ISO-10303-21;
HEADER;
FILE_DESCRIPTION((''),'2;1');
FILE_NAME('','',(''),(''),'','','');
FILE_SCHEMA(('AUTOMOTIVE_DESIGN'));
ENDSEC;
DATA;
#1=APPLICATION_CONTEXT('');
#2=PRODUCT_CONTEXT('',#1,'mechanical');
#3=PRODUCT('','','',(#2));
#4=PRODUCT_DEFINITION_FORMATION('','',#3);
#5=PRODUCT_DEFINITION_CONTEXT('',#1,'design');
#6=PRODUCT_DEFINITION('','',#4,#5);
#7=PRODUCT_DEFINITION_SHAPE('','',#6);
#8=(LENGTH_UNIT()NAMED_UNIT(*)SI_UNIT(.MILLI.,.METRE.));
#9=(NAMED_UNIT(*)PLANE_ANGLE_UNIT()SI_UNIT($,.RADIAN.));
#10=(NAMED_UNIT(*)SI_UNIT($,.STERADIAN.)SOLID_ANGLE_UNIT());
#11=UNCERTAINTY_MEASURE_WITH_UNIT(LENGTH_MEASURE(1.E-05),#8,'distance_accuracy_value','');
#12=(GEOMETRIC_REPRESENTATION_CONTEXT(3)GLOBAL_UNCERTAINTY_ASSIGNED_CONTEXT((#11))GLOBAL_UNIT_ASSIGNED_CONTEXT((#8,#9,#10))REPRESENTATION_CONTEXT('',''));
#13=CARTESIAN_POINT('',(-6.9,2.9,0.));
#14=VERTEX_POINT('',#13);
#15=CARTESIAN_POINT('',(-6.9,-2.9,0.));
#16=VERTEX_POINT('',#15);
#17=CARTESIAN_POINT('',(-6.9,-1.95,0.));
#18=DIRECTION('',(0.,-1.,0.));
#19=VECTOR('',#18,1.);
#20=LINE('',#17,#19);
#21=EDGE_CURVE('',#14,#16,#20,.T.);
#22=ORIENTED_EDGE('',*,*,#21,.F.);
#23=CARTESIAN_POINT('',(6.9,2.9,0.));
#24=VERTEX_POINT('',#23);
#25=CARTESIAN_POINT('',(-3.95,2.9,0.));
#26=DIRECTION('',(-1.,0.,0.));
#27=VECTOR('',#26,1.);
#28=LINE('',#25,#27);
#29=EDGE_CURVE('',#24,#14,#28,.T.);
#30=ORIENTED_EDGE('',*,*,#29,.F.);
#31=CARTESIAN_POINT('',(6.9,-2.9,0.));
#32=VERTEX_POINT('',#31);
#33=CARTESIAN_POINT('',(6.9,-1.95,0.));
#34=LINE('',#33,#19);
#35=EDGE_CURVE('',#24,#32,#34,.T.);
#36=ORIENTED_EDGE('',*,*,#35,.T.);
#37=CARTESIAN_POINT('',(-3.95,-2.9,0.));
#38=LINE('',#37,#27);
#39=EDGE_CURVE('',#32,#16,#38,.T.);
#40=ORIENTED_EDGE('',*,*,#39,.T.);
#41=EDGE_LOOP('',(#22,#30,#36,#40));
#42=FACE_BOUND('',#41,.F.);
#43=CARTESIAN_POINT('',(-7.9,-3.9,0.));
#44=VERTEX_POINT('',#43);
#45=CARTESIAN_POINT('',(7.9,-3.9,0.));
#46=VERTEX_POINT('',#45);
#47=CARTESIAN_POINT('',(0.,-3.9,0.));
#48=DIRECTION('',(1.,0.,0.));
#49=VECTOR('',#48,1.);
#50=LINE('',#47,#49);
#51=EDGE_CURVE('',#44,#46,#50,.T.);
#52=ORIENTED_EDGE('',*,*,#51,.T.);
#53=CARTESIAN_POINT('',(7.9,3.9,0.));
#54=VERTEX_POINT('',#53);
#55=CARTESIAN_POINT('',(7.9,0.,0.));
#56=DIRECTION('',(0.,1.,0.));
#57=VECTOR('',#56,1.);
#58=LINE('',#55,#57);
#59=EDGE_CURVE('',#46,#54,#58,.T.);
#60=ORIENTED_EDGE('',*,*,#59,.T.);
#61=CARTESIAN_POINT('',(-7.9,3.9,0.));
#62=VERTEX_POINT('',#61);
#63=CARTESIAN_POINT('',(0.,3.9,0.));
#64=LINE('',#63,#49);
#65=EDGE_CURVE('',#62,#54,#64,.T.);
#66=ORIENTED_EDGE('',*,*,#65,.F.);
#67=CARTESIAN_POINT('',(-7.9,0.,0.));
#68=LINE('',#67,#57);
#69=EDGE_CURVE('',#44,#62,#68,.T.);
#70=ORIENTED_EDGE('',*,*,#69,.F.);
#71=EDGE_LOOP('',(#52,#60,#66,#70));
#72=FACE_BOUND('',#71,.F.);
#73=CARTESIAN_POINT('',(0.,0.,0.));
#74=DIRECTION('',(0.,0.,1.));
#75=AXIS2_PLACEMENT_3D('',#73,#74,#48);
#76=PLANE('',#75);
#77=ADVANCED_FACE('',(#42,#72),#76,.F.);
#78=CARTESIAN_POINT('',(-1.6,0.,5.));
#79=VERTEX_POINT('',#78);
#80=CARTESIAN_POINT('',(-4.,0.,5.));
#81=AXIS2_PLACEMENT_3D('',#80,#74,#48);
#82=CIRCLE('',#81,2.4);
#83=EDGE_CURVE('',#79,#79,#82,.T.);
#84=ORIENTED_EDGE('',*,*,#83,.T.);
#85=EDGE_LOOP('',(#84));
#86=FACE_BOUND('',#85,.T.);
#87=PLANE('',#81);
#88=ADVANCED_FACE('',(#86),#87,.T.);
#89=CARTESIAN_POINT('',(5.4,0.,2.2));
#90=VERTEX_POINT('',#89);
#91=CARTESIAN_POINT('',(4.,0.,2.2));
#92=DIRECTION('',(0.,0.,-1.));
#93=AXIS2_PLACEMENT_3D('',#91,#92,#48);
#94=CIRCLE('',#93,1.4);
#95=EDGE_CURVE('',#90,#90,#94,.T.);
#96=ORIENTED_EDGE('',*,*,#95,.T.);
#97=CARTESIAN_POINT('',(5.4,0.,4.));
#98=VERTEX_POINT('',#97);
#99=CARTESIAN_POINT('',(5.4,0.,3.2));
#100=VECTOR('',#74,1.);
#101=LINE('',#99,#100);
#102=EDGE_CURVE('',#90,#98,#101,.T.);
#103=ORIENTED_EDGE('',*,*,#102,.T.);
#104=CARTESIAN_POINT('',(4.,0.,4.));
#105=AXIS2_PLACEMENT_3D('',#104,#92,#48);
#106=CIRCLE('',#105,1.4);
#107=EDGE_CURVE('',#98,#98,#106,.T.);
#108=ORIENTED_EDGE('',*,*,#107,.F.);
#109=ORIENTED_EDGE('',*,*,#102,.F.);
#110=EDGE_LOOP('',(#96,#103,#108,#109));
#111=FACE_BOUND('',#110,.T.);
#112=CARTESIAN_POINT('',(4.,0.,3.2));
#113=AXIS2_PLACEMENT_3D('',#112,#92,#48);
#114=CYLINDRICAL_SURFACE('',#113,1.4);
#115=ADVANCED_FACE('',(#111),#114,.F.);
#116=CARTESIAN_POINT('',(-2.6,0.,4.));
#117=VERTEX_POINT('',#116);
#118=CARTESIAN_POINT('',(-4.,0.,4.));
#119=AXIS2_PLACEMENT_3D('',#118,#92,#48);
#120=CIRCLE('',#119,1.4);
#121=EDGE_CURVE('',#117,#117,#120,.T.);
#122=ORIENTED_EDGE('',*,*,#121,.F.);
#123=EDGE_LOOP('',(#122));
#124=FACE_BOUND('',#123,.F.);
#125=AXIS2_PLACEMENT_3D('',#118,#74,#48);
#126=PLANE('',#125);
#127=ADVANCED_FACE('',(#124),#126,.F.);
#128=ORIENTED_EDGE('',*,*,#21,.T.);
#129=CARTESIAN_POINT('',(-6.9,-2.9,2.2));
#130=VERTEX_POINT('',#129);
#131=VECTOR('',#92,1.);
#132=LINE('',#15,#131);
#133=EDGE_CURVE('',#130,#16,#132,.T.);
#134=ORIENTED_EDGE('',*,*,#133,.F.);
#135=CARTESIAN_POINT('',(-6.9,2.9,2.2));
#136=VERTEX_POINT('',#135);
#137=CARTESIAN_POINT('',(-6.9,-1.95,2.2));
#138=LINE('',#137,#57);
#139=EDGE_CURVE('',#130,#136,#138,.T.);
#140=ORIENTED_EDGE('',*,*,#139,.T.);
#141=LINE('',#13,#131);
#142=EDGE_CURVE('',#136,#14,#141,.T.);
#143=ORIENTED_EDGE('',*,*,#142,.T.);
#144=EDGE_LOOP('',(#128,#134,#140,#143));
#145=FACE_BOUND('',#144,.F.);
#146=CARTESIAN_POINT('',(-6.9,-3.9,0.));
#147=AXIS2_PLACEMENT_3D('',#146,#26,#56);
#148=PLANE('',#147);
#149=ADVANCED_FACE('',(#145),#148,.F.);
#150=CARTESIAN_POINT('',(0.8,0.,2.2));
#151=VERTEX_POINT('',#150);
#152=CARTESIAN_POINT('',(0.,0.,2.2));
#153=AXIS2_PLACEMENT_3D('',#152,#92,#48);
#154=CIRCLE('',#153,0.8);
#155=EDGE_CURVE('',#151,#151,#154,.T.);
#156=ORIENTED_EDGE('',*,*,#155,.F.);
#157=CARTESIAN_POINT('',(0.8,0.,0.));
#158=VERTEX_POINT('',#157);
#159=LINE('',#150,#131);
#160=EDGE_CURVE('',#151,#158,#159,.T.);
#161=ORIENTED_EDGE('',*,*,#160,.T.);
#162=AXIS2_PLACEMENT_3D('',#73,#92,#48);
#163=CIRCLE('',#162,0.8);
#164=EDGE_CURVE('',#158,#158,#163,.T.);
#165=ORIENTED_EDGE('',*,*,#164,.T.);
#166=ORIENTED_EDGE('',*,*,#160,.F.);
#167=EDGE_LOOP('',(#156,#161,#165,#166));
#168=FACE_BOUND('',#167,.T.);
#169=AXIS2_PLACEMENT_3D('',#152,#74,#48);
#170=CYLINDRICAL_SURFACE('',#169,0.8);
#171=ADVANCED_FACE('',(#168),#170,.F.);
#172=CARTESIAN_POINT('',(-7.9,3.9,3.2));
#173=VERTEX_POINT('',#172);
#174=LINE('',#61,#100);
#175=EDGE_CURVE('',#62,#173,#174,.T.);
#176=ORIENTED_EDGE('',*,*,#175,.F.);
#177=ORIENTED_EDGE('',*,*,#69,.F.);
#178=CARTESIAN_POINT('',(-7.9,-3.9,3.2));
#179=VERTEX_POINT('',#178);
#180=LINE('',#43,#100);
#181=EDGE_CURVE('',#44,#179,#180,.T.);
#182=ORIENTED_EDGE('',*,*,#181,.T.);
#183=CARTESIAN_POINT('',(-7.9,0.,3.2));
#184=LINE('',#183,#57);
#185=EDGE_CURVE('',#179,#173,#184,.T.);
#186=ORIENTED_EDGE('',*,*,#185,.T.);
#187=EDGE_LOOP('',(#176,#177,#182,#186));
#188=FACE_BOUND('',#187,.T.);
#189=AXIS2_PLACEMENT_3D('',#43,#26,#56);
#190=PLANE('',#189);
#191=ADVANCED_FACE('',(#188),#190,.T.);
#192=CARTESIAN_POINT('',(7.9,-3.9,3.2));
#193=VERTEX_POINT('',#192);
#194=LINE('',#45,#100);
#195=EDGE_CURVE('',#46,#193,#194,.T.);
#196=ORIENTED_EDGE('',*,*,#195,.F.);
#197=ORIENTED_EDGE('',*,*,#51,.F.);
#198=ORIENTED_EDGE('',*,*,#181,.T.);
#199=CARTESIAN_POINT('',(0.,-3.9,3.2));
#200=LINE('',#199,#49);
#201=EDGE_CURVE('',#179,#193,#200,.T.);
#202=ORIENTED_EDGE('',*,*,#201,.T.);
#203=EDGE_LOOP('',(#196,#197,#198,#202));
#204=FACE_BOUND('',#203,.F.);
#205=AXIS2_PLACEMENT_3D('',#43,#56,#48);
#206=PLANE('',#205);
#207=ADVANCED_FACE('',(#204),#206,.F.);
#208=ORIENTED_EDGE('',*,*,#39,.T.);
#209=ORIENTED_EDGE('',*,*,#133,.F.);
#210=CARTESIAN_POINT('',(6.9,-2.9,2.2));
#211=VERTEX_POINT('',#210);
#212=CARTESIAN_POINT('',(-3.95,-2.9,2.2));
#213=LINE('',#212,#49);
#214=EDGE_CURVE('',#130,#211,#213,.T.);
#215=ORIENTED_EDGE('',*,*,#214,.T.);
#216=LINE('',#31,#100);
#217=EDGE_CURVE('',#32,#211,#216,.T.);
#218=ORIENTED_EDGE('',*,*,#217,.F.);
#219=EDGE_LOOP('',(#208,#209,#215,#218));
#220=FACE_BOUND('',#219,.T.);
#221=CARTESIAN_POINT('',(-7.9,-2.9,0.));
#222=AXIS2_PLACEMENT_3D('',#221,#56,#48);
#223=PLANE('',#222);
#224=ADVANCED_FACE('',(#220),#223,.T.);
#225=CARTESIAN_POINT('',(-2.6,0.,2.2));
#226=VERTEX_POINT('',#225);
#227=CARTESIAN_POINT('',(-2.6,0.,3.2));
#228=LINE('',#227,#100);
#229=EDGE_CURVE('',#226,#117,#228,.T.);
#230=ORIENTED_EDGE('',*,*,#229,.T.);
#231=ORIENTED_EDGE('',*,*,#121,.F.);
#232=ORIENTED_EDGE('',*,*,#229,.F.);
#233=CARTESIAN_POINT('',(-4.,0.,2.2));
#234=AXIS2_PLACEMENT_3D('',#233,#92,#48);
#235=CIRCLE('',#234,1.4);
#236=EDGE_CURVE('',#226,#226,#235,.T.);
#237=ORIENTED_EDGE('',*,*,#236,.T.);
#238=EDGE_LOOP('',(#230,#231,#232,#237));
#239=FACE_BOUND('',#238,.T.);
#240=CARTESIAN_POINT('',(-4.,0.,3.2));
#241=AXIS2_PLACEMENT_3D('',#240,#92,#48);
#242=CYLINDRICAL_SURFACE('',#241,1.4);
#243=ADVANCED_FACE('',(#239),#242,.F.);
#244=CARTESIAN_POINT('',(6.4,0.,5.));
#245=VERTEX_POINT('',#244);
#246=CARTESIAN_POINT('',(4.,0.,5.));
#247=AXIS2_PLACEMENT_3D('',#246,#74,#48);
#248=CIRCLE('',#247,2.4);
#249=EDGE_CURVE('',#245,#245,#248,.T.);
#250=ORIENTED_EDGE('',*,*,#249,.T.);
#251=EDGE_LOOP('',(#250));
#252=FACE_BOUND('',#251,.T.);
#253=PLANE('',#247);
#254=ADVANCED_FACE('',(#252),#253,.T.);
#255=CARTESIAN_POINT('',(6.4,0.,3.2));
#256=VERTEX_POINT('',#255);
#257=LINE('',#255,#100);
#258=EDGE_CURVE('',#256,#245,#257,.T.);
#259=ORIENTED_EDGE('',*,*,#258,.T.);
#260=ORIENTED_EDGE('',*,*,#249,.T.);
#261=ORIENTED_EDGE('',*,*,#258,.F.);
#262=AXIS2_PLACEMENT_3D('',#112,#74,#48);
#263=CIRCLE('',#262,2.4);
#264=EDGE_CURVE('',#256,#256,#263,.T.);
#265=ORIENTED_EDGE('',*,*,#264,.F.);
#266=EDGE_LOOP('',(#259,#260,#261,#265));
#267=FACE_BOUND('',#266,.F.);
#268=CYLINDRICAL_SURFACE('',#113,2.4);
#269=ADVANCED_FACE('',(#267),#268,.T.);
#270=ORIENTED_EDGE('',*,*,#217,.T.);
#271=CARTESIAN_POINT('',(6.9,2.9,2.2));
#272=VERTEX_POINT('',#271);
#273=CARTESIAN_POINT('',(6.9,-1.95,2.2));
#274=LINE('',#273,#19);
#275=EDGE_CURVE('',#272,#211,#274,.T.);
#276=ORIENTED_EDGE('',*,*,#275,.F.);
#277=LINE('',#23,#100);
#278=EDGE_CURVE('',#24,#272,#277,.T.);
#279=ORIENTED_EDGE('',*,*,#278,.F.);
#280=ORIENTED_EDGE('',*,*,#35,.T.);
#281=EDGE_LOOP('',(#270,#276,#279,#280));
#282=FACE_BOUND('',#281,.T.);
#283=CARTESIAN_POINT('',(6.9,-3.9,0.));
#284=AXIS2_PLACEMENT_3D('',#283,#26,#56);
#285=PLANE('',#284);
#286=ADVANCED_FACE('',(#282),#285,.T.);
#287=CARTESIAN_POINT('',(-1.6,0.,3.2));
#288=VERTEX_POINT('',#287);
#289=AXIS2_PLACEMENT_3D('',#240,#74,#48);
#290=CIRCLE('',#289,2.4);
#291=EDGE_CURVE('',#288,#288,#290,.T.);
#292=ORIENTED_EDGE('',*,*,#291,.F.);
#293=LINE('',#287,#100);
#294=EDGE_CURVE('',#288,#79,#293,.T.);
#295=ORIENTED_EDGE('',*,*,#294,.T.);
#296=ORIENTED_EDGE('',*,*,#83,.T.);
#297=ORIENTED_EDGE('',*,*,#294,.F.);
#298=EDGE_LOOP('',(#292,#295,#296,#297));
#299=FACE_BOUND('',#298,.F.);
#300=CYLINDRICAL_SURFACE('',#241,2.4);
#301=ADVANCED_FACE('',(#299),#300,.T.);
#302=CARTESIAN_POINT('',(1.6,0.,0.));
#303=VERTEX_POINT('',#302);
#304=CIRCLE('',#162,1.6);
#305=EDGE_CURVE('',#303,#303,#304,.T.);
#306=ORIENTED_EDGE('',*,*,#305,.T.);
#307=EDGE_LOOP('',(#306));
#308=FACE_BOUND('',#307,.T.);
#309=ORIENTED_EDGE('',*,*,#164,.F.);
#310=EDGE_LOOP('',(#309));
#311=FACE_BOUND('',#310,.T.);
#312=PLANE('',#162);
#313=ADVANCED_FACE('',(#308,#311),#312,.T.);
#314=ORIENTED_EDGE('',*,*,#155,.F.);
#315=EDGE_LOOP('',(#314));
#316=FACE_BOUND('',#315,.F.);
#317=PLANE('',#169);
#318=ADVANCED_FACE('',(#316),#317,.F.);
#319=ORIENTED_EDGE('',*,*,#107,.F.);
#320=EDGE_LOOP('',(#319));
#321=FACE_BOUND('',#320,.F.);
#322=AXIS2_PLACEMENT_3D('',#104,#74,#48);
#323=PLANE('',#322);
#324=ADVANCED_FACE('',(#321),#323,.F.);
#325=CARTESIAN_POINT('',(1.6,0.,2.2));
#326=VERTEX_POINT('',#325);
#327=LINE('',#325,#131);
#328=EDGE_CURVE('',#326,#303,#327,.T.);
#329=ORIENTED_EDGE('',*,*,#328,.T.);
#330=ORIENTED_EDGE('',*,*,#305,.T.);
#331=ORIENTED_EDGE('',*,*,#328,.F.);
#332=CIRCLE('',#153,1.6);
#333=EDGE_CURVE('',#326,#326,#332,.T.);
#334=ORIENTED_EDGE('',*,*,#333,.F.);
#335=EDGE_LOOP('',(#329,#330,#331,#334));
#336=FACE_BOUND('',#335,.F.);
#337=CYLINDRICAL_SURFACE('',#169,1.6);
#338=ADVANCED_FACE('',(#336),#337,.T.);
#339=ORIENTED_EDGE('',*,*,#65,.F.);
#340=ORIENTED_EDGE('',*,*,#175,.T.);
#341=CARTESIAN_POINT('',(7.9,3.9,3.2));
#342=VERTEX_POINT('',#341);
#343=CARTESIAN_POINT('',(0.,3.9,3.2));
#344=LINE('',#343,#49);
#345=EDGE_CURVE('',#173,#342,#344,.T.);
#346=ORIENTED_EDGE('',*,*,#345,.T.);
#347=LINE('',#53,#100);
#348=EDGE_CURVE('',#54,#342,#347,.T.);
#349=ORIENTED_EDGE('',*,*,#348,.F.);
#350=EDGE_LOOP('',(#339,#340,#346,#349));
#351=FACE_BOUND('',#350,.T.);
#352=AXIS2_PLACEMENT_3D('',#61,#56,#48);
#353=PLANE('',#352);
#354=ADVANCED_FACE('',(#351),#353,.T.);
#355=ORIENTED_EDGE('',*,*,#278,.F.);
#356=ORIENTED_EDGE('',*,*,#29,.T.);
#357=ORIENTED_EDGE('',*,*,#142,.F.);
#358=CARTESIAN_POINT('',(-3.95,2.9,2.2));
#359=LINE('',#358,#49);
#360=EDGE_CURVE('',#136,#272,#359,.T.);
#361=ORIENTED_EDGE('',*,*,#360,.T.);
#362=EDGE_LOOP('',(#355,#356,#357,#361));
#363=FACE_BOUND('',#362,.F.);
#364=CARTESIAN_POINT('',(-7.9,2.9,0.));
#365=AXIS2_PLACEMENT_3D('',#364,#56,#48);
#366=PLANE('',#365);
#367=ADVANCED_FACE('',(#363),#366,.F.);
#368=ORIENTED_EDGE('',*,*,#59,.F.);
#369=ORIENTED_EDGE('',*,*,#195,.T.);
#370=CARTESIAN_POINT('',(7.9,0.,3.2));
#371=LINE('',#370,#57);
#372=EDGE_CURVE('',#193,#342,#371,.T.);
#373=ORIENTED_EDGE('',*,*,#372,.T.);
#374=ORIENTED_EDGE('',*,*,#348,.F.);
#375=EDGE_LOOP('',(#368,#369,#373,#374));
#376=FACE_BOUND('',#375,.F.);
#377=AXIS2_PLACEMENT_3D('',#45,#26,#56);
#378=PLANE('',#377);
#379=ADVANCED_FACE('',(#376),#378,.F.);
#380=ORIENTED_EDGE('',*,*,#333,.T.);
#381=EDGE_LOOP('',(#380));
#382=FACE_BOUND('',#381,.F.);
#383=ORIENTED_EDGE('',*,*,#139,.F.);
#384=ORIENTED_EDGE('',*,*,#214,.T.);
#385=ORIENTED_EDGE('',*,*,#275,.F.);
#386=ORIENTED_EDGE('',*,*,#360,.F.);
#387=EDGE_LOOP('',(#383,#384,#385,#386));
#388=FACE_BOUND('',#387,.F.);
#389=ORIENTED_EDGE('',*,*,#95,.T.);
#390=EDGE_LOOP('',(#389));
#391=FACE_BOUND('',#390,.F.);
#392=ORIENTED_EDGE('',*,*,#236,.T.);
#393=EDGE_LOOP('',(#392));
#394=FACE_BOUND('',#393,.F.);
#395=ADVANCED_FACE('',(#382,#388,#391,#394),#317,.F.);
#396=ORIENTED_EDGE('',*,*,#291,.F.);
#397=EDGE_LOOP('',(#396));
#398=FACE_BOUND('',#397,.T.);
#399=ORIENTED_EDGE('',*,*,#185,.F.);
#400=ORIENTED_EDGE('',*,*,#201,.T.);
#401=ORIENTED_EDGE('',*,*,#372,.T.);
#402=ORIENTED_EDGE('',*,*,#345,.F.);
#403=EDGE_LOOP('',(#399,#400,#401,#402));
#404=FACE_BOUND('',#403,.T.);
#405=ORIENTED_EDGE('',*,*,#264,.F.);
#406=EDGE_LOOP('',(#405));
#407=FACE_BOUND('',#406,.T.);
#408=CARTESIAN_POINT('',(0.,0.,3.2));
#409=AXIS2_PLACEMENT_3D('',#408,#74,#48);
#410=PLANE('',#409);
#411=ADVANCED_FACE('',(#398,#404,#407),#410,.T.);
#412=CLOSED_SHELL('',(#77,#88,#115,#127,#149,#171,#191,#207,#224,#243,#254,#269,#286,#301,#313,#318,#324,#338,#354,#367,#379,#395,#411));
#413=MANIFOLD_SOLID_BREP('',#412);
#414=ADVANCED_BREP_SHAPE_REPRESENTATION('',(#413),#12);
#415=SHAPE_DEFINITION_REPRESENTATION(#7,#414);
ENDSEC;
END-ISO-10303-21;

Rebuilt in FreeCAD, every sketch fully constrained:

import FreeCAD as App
import Part
import Sketcher

V = App.Vector


def faces_at(feature, points):
    """Names of the faces that lie closest to the given points."""
    faces = feature.Shape.Faces
    near = lambda p: min(range(len(faces)), key=lambda i: faces[i].distToShape(Part.Vertex(*p))[0])
    return sorted({f"Face{near(p) + 1}" for p in points})


def add_polygon(sketch, points):
    """Adds a closed chain of lines whose ends are joined by coincident constraints."""
    first, n = sketch.GeometryCount, len(points)
    for a, b in zip(points, points[1:] + points[:1]):
        sketch.addGeometry(Part.LineSegment(App.Vector(*a, 0), App.Vector(*b, 0)), False)
    for i in range(n):
        sketch.addConstraint(Sketcher.Constraint("Coincident", first + i, 2, first + (i + 1) % n, 1))

doc = App.newDocument("Part")
body = doc.addObject("PartDesign::Body", "Body")

# Sketch on XY plane
sketch1 = body.newObject("Sketcher::SketchObject", "Sketch")
sketch1.AttachmentSupport = (doc.getObject("XY_Plane"), [""])
sketch1.MapMode = "FlatFace"
add_polygon(sketch1, [(-8, 4), (-8, -4), (8, -4), (8, 4)])  # lines 0-3
sketch1.addConstraint([
    Sketcher.Constraint("Vertical", 0),
    Sketcher.Constraint("Horizontal", 1),
    Sketcher.Constraint("Vertical", 2),
    Sketcher.Constraint("Horizontal", 3),
    Sketcher.Constraint("Symmetric", 0, 2, 2, 2, -1, 1),
    Sketcher.Constraint("DistanceX", 1, 1, 1, 2, 15.8),
    Sketcher.Constraint("DistanceY", 0, 2, 0, 1, 7.8),
])
pad1 = body.newObject("PartDesign::Pad", "Pad")
pad1.Profile = sketch1
pad1.Length = 3.2

# Sketch on XY plane
sketch2 = body.newObject("Sketcher::SketchObject", "Sketch001")
sketch2.AttachmentSupport = (doc.getObject("XY_Plane"), [""])
sketch2.MapMode = "FlatFace"
sketch2.AttachmentOffset = App.Placement(V(0, 0, 3.2), App.Rotation())
sketch2.addGeometry([
    Part.Circle(V(-4, 0, 0), V(0, 0, 1), 2.4),
    Part.Circle(V(4, 0, 0), V(0, 0, 1), 2.4),
], False)
sketch2.addConstraint([
    Sketcher.Constraint("Equal", 0, 1),
    Sketcher.Constraint("Symmetric", 0, 3, 1, 3, -1, 1),
    Sketcher.Constraint("PointOnObject", 0, 3, -1),
    Sketcher.Constraint("Diameter", 0, 4.8),
    Sketcher.Constraint("DistanceX", 0, 3, -1, 1, 4.0),
])
pad2 = body.newObject("PartDesign::Pad", "Pad001")
pad2.Profile = sketch2
pad2.Length = 1.8
doc.recompute()

thickness = body.newObject("PartDesign::Thickness", "Thickness")
thickness.Base = (pad2, faces_at(pad2, [(0, 0, 0)]))
thickness.Value = 1
thickness.Reversed = True
thickness.Join = "Intersection"

# Sketch on XY plane
sketch3 = body.newObject("Sketcher::SketchObject", "Sketch002")
sketch3.AttachmentSupport = (doc.getObject("XY_Plane"), [""])
sketch3.MapMode = "FlatFace"
sketch3.AttachmentOffset = App.Placement(V(0, 0, 2.2), App.Rotation())
sketch3.addGeometry([
    Part.Circle(V(0, 0, 0), V(0, 0, 1), 1.6),
    Part.Circle(V(0, 0, 0), V(0, 0, 1), 0.8),
], False)
sketch3.addConstraint([
    Sketcher.Constraint("Coincident", 0, 3, -1, 1),
    Sketcher.Constraint("Coincident", 1, 3, -1, 1),
    Sketcher.Constraint("Diameter", 0, 3.2),
    Sketcher.Constraint("Diameter", 1, 1.6),
])
pad3 = body.newObject("PartDesign::Pad", "Pad002")
pad3.Profile = sketch3
pad3.Length = 2.2
pad3.Reversed = True

doc.recompute()
